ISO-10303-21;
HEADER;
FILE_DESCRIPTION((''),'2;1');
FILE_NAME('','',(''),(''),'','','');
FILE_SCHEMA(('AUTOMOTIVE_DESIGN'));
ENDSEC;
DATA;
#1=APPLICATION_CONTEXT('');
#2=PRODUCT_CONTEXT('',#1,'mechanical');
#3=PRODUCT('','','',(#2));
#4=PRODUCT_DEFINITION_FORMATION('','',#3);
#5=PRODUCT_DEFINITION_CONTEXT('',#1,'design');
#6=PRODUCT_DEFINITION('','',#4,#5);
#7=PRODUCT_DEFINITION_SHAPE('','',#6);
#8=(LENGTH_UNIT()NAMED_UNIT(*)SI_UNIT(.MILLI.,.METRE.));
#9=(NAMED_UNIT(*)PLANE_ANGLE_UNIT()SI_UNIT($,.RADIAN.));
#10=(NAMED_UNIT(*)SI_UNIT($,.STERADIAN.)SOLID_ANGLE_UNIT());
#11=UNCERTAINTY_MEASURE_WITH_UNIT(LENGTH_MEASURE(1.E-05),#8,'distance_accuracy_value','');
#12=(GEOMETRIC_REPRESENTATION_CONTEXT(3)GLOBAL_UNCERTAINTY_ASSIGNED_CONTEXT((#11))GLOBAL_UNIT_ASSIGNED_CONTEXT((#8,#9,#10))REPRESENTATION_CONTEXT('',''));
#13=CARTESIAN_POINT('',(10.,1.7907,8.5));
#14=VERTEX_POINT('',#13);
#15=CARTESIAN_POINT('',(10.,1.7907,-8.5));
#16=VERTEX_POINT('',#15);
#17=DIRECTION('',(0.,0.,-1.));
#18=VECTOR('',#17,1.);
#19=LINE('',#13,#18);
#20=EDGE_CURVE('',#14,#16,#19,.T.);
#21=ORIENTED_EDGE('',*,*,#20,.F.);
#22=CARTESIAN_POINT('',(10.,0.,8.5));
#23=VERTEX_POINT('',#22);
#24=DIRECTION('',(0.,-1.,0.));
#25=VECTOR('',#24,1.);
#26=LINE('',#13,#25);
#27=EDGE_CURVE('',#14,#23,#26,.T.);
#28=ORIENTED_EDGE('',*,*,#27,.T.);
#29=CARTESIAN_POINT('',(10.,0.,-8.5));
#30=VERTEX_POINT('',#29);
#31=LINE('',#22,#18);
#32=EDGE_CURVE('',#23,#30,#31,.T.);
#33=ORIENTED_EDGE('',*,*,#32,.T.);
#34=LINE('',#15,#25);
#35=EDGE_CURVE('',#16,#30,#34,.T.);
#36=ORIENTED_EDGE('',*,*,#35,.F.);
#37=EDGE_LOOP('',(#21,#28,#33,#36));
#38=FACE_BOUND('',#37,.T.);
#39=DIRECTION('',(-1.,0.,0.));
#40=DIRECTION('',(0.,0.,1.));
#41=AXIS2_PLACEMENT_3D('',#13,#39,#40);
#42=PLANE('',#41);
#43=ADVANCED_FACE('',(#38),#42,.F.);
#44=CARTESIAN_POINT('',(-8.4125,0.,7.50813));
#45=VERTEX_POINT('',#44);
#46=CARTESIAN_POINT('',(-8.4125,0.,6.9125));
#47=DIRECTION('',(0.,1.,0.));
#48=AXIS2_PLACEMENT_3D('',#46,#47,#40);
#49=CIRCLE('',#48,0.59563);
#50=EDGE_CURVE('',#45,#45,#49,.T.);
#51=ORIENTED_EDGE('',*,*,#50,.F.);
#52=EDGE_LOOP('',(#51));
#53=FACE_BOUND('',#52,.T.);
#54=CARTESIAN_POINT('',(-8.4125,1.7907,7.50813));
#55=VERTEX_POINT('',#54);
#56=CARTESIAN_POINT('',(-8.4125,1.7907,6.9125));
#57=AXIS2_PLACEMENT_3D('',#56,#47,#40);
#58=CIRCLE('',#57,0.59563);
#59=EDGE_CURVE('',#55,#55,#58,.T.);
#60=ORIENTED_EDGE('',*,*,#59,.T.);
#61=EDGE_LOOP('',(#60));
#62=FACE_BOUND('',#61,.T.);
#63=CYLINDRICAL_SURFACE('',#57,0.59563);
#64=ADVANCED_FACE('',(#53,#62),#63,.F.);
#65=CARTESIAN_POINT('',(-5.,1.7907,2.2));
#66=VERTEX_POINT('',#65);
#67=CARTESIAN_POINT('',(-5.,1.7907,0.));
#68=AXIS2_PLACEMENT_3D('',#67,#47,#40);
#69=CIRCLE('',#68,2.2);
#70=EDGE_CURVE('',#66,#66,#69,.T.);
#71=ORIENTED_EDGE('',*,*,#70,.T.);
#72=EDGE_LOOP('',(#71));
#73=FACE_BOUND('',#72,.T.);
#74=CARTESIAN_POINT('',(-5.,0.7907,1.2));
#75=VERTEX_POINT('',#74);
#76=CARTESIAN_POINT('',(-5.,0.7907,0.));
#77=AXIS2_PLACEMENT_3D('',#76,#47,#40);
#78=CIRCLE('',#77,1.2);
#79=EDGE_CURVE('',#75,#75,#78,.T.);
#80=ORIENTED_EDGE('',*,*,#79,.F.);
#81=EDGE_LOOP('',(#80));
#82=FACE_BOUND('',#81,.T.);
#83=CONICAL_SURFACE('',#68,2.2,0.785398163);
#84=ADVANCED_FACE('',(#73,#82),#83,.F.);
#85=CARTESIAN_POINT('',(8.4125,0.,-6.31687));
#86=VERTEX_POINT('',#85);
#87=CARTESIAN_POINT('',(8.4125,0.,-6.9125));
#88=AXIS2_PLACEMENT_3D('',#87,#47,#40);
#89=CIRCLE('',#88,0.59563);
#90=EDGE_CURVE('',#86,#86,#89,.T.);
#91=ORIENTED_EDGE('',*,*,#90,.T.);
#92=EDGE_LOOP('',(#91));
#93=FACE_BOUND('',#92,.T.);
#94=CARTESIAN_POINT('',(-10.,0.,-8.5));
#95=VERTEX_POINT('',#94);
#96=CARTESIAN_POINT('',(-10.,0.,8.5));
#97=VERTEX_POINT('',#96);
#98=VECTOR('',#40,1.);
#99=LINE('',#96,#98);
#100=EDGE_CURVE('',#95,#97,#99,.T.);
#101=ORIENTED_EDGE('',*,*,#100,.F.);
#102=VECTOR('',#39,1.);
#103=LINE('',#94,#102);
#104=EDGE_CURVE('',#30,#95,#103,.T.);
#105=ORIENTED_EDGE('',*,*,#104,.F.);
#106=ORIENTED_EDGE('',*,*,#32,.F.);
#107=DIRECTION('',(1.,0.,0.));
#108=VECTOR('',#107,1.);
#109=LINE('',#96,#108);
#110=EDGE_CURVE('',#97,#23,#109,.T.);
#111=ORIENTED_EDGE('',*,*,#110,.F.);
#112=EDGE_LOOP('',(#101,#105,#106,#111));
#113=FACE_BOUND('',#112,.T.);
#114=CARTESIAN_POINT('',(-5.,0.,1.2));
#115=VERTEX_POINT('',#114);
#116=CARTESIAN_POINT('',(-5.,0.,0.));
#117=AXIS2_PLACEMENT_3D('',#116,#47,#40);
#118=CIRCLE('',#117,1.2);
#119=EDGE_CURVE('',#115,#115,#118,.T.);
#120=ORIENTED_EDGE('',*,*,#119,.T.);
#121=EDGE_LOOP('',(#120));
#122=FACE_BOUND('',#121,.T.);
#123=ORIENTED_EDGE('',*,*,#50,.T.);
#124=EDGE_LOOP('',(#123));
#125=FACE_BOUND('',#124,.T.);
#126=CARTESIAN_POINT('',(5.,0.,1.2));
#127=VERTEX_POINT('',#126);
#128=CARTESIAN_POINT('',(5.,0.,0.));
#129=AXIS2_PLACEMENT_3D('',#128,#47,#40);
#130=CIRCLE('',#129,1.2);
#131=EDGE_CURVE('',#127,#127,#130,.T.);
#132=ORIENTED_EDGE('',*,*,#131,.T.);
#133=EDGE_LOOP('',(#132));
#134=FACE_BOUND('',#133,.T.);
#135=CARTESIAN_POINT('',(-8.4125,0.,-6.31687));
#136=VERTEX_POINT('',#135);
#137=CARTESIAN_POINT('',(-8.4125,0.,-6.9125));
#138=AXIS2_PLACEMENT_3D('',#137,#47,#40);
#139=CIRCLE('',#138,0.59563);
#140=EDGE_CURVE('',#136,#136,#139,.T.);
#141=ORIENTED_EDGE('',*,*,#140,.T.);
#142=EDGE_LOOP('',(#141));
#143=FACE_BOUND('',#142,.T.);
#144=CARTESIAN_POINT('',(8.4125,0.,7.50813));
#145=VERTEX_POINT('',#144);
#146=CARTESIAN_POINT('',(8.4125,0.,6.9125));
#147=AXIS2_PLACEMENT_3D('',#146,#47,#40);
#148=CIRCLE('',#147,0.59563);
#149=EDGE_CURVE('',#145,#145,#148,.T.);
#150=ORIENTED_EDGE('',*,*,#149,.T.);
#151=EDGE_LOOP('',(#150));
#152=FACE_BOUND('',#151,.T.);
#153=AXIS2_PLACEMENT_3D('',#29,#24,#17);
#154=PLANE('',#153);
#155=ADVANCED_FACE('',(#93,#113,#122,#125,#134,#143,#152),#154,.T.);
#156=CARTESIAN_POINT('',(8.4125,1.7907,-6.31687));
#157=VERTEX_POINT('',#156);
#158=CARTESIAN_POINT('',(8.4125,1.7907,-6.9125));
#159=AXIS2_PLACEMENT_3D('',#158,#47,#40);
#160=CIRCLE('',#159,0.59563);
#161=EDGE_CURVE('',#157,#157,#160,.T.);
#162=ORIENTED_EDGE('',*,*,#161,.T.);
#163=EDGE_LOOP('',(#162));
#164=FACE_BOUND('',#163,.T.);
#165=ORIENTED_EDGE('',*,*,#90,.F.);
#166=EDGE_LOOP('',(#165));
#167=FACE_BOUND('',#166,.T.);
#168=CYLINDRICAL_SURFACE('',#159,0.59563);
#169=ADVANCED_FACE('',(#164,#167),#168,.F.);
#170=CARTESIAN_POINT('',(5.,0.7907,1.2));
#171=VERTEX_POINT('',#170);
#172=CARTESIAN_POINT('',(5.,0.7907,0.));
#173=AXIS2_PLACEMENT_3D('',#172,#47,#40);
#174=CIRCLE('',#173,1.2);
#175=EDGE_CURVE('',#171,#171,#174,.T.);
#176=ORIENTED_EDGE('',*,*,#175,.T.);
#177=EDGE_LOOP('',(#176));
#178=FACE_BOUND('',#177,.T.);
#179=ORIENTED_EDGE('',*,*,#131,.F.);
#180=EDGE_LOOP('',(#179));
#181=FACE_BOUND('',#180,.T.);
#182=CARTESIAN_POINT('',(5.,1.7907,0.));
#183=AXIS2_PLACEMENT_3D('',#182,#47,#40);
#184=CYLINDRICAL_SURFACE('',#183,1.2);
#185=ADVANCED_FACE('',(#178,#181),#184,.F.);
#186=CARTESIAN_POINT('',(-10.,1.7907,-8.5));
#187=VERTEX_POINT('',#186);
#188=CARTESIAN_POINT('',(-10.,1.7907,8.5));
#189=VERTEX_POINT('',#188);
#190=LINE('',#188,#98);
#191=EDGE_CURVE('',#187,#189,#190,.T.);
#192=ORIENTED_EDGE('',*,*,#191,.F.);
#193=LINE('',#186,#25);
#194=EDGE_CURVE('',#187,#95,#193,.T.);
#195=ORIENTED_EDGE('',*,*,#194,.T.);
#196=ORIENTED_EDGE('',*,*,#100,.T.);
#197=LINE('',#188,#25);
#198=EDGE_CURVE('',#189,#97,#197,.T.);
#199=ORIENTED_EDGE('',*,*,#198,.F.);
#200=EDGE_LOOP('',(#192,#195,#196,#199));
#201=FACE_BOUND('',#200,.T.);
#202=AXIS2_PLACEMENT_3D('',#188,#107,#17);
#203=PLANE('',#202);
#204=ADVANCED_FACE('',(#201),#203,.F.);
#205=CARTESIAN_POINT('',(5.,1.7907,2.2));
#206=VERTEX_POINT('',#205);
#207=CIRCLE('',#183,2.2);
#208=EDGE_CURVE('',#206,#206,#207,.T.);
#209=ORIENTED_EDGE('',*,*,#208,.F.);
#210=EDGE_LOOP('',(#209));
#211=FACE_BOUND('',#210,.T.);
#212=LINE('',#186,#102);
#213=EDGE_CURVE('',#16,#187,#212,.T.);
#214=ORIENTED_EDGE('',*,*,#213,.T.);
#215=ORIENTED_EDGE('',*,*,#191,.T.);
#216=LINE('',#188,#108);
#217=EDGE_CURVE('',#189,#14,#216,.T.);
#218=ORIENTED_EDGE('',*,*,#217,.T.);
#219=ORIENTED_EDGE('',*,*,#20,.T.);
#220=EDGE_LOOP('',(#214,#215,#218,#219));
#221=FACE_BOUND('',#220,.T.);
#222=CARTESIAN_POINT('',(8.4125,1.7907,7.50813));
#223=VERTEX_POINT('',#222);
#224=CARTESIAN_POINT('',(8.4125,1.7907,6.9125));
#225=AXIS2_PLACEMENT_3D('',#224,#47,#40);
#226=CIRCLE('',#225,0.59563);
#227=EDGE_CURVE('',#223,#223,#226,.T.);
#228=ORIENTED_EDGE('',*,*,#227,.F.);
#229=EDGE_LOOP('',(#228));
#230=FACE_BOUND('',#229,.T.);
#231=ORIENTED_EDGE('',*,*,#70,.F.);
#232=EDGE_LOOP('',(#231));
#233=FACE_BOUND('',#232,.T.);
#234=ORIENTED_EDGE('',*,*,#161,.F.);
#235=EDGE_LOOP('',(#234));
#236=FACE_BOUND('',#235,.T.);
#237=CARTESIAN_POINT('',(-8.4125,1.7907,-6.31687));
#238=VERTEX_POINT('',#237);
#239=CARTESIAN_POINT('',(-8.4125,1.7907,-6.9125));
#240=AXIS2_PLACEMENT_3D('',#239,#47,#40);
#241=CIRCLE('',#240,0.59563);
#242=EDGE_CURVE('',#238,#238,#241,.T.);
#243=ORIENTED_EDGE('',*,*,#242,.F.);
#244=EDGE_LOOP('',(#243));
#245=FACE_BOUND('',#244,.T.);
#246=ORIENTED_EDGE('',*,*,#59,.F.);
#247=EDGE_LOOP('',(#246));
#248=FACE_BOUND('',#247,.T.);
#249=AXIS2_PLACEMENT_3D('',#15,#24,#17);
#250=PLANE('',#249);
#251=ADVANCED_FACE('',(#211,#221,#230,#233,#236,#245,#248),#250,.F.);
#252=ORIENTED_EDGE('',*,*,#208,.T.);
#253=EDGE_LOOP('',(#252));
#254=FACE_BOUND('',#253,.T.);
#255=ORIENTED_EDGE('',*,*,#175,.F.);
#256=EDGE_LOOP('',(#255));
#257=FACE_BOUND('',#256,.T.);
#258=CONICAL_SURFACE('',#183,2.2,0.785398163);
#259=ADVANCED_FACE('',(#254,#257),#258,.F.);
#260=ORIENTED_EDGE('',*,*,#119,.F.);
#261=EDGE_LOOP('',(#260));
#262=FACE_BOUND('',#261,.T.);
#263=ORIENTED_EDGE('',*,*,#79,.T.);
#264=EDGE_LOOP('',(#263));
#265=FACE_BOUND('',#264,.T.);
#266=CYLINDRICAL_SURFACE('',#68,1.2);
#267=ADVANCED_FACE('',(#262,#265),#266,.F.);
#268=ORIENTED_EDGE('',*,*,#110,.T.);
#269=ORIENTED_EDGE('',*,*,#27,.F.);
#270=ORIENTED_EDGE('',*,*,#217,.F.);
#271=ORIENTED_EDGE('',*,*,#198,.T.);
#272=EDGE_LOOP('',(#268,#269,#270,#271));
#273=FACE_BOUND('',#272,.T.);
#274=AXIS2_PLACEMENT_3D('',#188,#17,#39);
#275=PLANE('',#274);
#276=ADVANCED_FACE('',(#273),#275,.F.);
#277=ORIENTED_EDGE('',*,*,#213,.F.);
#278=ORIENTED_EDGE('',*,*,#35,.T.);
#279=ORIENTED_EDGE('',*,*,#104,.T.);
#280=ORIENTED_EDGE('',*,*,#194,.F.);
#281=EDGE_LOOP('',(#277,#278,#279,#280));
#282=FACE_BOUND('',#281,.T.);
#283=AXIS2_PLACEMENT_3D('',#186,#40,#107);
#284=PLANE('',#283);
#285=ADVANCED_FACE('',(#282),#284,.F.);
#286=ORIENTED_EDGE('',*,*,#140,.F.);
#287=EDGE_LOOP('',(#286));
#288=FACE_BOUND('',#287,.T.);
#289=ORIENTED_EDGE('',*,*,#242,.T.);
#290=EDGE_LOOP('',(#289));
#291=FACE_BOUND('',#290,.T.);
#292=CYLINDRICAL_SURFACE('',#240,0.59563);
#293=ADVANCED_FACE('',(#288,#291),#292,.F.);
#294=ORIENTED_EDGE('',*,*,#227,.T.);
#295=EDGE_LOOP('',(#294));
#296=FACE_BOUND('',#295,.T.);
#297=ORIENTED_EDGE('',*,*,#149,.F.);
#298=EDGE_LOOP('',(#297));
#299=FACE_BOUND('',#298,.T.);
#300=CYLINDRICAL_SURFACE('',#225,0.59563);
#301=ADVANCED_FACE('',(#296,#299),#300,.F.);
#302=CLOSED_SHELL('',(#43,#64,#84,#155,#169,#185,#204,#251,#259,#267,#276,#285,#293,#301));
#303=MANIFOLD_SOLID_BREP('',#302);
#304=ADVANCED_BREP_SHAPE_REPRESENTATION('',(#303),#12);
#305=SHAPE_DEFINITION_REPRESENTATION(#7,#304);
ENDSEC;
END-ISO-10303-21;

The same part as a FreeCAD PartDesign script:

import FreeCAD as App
import Part
import Sketcher
Q = App.Units.Quantity

doc = App.newDocument("Part")
body = doc.addObject("PartDesign::Body", "Body")

# Sketch on XZ plane
sketch1 = body.newObject("Sketcher::SketchObject", "Sketch")
sketch1.AttachmentSupport = (doc.getObject("XZ_Plane"), [""])
sketch1.MapMode = "FlatFace"
sketch1.addGeometry([
    Part.LineSegment(App.Vector(-10, -8, 0), App.Vector(-10, 8, 0)),
    Part.LineSegment(App.Vector(-10, 8, 0), App.Vector(10, 8, 0)),
    Part.LineSegment(App.Vector(10, 8, 0), App.Vector(10, -8, 0)),
    Part.LineSegment(App.Vector(10, -8, 0), App.Vector(-10, -8, 0)),
], False)
sketch1.addConstraint([
    Sketcher.Constraint("Coincident", 0, 2, 1, 1),
    Sketcher.Constraint("Coincident", 1, 2, 2, 1),
    Sketcher.Constraint("Coincident", 2, 2, 3, 1),
    Sketcher.Constraint("Coincident", 3, 2, 0, 1),
    Sketcher.Constraint("Vertical", 0),
    Sketcher.Constraint("Horizontal", 1),
    Sketcher.Constraint("Vertical", 2),
    Sketcher.Constraint("Horizontal", 3),
    Sketcher.Constraint("Symmetric", 0, 2, 2, 2, -1, 1),
    Sketcher.Constraint("DistanceX", 1, 1, 1, 2, Q("20 mm")),
    Sketcher.Constraint("DistanceY", 0, 1, 0, 2, Q("17 mm")),
])
pad1 = body.newObject("PartDesign::Pad", "Pad")
pad1.Profile = sketch1
pad1.Length = 1.7907
pad1.Reversed = True

# Sketch on XZ plane
sketch2 = body.newObject("Sketcher::SketchObject", "Sketch001")
sketch2.AttachmentSupport = (doc.getObject("XZ_Plane"), [""])
sketch2.MapMode = "FlatFace"
sketch2.AttachmentOffset = App.Placement(App.Vector(0, 0, -1.7907), App.Rotation())
sketch2.addGeometry([
    Part.Circle(App.Vector(8.4, -6.9, 0), App.Vector(0, 0, 1), 0.6),
    Part.Circle(App.Vector(8.4, 6.9, 0), App.Vector(0, 0, 1), 0.6),
    Part.Circle(App.Vector(-8.4, -6.9, 0), App.Vector(0, 0, 1), 0.6),
    Part.Circle(App.Vector(-8.4, 6.9, 0), App.Vector(0, 0, 1), 0.6),
], False)
sketch2.addConstraint([
    Sketcher.Constraint("Equal", 0, 1),
    Sketcher.Constraint("Equal", 1, 2),
    Sketcher.Constraint("Equal", 2, 3),
    Sketcher.Constraint("Symmetric", 1, 3, 2, 3, -1, 1),
    Sketcher.Constraint("Symmetric", 0, 3, 3, 3, -1, 1),
    Sketcher.Constraint("Symmetric", 0, 3, 2, 3, -2),
    Sketcher.Constraint("Diameter", 0, Q("1.19126 mm")),
    Sketcher.Constraint("DistanceY", 0, 3, 1, 3, Q("13.825 mm")),
    Sketcher.Constraint("DistanceX", 2, 3, 0, 3, Q("16.825 mm")),
])
doc.recompute()
hole = body.newObject("PartDesign::Hole", "Hole")
hole.Profile = sketch2
hole.ThreadType = "None"
hole.Diameter = 1.19126
hole.DepthType = "ThroughAll"
hole.Reversed = True

# Sketch on YZ plane
sketch3 = body.newObject("Sketcher::SketchObject", "Sketch002")
sketch3.AttachmentSupport = (doc.getObject("YZ_Plane"), [""])
sketch3.MapMode = "FlatFace"
sketch3.AttachmentOffset = App.Placement(App.Vector(0, 0, -5), App.Rotation())
sketch3.addGeometry([
    Part.LineSegment(App.Vector(0, 0, 0), App.Vector(1.8, 0, 0)),  # 0
    Part.LineSegment(App.Vector(1.8, 0, 0), App.Vector(1.8, 2.2, 0)),  # 1
    Part.LineSegment(App.Vector(1.8, 2.2, 0), App.Vector(0.8, 1.2, 0)),  # 2
    Part.LineSegment(App.Vector(0.8, 1.2, 0), App.Vector(0, 1.2, 0)),  # 3
    Part.LineSegment(App.Vector(0, 1.2, 0), App.Vector(0, 0, 0)),  # 4
], False)
sketch3.addConstraint([
    Sketcher.Constraint("Coincident", 0, 2, 1, 1),
    Sketcher.Constraint("Coincident", 1, 2, 2, 1),
    Sketcher.Constraint("Coincident", 2, 2, 3, 1),
    Sketcher.Constraint("Coincident", 3, 2, 4, 1),
    Sketcher.Constraint("Coincident", 4, 2, 0, 1),
    Sketcher.Constraint("Horizontal", 0),
    Sketcher.Constraint("Vertical", 1),
    Sketcher.Constraint("Horizontal", 3),
    Sketcher.Constraint("Vertical", 4),
    Sketcher.Constraint("Coincident", 4, 2, -1, 1),
    Sketcher.Constraint("Angle", 2, Q("-135 deg")),
    Sketcher.Constraint("DistanceY", 1, 1, 1, 2, Q("2.2 mm")),
    Sketcher.Constraint("DistanceY", 4, 2, 4, 1, Q("1.2 mm")),
    Sketcher.Constraint("DistanceX", 0, 1, 0, 2, Q("1.7907 mm")),
])
groove = body.newObject("PartDesign::Groove", "Groove")
groove.Profile = sketch3
groove.ReferenceAxis = (sketch3, ["H_Axis"])
groove.Angle = 360
doc.recompute()

linearpattern = body.newObject("PartDesign::LinearPattern", "LinearPattern")
linearpattern.Originals = [groove]
linearpattern.Direction = (doc.getObject("X_Axis"), [""])
linearpattern.Mode = "offset"
linearpattern.Offset = 10
linearpattern.Occurrences = 2
body.Tip = linearpattern

doc.recompute()
